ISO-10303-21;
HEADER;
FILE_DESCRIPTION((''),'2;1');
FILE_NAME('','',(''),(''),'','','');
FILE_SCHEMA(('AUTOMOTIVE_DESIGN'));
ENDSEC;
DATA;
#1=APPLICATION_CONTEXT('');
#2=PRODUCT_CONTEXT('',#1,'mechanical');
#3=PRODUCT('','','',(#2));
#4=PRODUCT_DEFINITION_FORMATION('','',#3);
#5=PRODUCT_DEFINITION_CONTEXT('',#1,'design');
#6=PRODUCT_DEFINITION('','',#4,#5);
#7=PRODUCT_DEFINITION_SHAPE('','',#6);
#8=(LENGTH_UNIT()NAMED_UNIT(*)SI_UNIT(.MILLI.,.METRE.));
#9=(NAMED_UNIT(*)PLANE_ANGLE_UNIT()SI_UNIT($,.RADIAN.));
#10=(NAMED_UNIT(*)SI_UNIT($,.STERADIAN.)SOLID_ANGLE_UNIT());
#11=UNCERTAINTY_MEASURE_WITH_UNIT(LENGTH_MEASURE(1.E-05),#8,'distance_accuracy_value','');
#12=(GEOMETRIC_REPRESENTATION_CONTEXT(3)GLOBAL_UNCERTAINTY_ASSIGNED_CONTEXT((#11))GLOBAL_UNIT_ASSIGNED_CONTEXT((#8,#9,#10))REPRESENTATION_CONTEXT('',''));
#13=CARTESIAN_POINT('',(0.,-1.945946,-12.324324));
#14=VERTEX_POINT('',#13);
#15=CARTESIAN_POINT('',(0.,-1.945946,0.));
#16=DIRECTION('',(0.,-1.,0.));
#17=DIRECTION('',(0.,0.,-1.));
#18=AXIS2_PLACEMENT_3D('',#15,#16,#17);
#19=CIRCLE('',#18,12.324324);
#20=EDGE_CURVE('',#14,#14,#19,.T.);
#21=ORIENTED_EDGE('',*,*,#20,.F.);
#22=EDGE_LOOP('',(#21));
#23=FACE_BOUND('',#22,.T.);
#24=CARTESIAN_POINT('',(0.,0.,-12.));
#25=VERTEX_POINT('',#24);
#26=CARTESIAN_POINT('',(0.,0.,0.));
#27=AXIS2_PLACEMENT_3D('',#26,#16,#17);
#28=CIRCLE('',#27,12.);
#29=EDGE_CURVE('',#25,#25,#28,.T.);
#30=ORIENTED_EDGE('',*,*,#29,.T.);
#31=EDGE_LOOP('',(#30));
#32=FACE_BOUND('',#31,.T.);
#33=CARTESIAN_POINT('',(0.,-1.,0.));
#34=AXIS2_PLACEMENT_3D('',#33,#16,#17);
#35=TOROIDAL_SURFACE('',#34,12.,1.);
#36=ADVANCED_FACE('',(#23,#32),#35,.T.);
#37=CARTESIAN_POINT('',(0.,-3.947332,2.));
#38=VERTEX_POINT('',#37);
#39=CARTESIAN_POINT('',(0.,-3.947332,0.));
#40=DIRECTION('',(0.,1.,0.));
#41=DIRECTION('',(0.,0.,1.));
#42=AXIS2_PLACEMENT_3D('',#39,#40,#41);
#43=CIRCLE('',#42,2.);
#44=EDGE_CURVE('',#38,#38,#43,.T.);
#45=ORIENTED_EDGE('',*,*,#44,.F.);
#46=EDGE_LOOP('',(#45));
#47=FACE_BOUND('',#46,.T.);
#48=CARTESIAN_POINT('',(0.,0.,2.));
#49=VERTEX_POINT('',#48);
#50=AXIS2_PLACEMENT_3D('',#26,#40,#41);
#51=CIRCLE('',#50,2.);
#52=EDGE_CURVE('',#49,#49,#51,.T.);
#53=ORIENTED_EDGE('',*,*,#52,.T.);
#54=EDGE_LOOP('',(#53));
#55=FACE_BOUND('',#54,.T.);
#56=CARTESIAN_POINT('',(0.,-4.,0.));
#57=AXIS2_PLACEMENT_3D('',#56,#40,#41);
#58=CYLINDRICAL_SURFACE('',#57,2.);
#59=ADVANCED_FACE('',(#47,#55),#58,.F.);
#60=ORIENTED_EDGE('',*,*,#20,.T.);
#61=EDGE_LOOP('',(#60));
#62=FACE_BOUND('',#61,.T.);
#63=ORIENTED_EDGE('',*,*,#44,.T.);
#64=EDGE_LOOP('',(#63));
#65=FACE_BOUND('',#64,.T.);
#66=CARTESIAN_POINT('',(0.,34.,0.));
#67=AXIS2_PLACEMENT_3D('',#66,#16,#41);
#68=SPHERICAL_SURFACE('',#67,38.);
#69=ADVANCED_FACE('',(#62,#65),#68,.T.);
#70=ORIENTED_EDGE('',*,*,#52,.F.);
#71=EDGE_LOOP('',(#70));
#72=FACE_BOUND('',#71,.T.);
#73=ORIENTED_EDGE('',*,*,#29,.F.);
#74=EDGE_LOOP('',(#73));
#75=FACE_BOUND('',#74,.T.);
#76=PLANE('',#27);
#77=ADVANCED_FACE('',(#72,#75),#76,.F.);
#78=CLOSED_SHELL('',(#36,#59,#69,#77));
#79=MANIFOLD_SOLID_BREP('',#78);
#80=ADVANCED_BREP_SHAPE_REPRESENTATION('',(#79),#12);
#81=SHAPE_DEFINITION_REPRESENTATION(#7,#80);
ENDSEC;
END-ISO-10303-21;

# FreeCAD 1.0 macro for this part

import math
import FreeCAD as App
import Part
import Sketcher

V = App.Vector

doc = App.newDocument("Part")
body = doc.addObject("PartDesign::Body", "Body")

# Sketch on YZ plane
sketch1 = body.newObject("Sketcher::SketchObject", "Sketch")
sketch1.AttachmentSupport = (doc.getObject("YZ_Plane"), [""])
sketch1.MapMode = "FlatFace"
sketch1.addGeometry([
    Part.LineSegment(V(0, 0, 0), V(0, 12, 0)),
    Part.ArcOfCircle(Part.Circle(V(-1, 12, 0), V(0, 0, 1), 1), math.radians(0), math.radians(161.075356)),
    Part.ArcOfCircle(Part.Circle(V(34, 0, 0), V(0, 0, 1), 38), math.radians(161.075356), math.radians(180)),
    Part.LineSegment(V(-4, 0, 0), V(0, 0, 0)),
], False)
sketch1.addConstraint([
    Sketcher.Constraint("Tangent", 0, 2, 1, 1),
    Sketcher.Constraint("Tangent", 1, 2, 2, 1),
    Sketcher.Constraint("Coincident", 2, 2, 3, 1),
    Sketcher.Constraint("Coincident", 3, 2, 0, 1),
    Sketcher.Constraint("Vertical", 0),
    Sketcher.Constraint("Horizontal", 3),
    Sketcher.Constraint("Coincident", 3, 2, -1, 1),
    Sketcher.Constraint("PointOnObject", 2, 3, -1),
    Sketcher.Constraint("Radius", 1, 1.0),
    Sketcher.Constraint("Radius", 2, 38.0),
    Sketcher.Constraint("DistanceX", 3, 1, 3, 2, 4.0),
])
revolution = body.newObject("PartDesign::Revolution", "Revolution")
revolution.Profile = sketch1
revolution.ReferenceAxis = (sketch1, ["H_Axis"])
revolution.Angle = 360

# Sketch on XZ plane
sketch2 = body.newObject("Sketcher::SketchObject", "Sketch001")
sketch2.AttachmentSupport = (doc.getObject("XZ_Plane"), [""])
sketch2.MapMode = "FlatFace"
sketch2.addGeometry(Part.Circle(V(0, 0, 0), V(0, 0, 1), 2), False)
sketch2.addConstraint([
    Sketcher.Constraint("Coincident", 0, 3, -1, 1),
    Sketcher.Constraint("Diameter", 0, 4.0),
])
pocket1 = body.newObject("PartDesign::Pocket", "Pocket")
pocket1.Profile = sketch2
pocket1.Type = "ThroughAll"
pocket1.Reversed = True

doc.recompute()
